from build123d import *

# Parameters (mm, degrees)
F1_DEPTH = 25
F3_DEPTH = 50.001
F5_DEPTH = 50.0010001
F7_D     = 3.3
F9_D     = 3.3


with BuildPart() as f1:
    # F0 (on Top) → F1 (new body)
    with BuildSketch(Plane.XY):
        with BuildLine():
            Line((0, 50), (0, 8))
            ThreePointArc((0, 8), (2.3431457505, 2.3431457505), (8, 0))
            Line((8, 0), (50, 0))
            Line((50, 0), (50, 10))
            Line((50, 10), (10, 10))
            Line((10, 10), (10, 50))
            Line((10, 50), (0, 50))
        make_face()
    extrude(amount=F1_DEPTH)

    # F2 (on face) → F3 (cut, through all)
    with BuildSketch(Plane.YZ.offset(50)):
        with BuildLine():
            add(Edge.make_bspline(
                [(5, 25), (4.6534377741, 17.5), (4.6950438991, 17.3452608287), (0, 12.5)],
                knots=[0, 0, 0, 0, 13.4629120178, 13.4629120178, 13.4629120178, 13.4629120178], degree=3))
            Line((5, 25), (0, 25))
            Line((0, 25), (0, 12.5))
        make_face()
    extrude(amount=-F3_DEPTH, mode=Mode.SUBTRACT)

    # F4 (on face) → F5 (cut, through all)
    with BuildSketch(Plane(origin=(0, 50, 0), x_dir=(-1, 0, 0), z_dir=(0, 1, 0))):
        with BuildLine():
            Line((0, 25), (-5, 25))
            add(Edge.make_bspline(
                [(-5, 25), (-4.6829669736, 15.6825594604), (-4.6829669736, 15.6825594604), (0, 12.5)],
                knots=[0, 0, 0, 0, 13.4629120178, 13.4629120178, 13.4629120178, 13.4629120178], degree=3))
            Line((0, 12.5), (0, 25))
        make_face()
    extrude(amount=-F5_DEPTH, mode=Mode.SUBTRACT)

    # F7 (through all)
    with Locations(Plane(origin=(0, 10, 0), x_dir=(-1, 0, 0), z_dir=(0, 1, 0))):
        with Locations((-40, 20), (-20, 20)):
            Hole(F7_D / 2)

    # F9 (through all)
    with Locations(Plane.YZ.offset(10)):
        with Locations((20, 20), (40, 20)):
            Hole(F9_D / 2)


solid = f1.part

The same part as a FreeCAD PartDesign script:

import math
import FreeCAD as App
import Part
import Sketcher
from FreeCAD import Vector

doc = App.newDocument("Part")
body = doc.addObject("PartDesign::Body", "Body")

# Sketch on XY plane
sketch1 = body.newObject("Sketcher::SketchObject", "Sketch")
sketch1.AttachmentSupport = (doc.getObject("XY_Plane"), [""])
sketch1.MapMode = "FlatFace"
sketch1.addGeometry(Part.LineSegment(Vector(0, 50, 0), Vector(0, 8, 0)), False)
sketch1.addGeometry(Part.ArcOfCircle(Part.Circle(Vector(8, 8, 0), Vector(0, 0, 1), 8), math.radians(180), math.radians(270)), False)
sketch1.addGeometry(Part.LineSegment(Vector(8, 0, 0), Vector(50, 0, 0)), False)
sketch1.addGeometry(Part.LineSegment(Vector(50, 0, 0), Vector(50, 10, 0)), False)
sketch1.addGeometry(Part.LineSegment(Vector(50, 10, 0), Vector(10, 10, 0)), False)
sketch1.addGeometry(Part.LineSegment(Vector(10, 10, 0), Vector(10, 50, 0)), False)
sketch1.addGeometry(Part.LineSegment(Vector(10, 50, 0), Vector(0, 50, 0)), False)
sketch1.addConstraint(Sketcher.Constraint("Tangent", 0, 2, 1, 1))
sketch1.addConstraint(Sketcher.Constraint("Tangent", 1, 2, 2, 1))
sketch1.addConstraint(Sketcher.Constraint("Coincident", 2, 2, 3, 1))
sketch1.addConstraint(Sketcher.Constraint("Coincident", 3, 2, 4, 1))
sketch1.addConstraint(Sketcher.Constraint("Coincident", 4, 2, 5, 1))
sketch1.addConstraint(Sketcher.Constraint("Coincident", 5, 2, 6, 1))
sketch1.addConstraint(Sketcher.Constraint("Coincident", 6, 2, 0, 1))
sketch1.addConstraint(Sketcher.Constraint("Vertical", 0))
sketch1.addConstraint(Sketcher.Constraint("Horizontal", 2))
sketch1.addConstraint(Sketcher.Constraint("Vertical", 3))
sketch1.addConstraint(Sketcher.Constraint("Horizontal", 4))
sketch1.addConstraint(Sketcher.Constraint("Vertical", 5))
sketch1.addConstraint(Sketcher.Constraint("Horizontal", 6))
sketch1.addConstraint(Sketcher.Constraint("PointOnObject", 0, 2, -2))
sketch1.addConstraint(Sketcher.Constraint("PointOnObject", 1, 2, -1))
sketch1.addConstraint(Sketcher.Constraint("Equal", 2, 0))
sketch1.addConstraint(Sketcher.Constraint("Equal", 6, 3))
sketch1.addConstraint(Sketcher.Constraint("Radius", 1, 8.0))
sketch1.addConstraint(Sketcher.Constraint("DistanceX", 2, 1, 2, 2, 42.0))
sketch1.addConstraint(Sketcher.Constraint("DistanceX", 4, 2, 4, 1, 40.0))
pad1 = body.newObject("PartDesign::Pad", "Pad")
pad1.Profile = sketch1
pad1.Length = 25

# Sketch on YZ plane
sketch2 = body.newObject("Sketcher::SketchObject", "Sketch001")
sketch2.AttachmentSupport = (doc.getObject("YZ_Plane"), [""])
sketch2.MapMode = "FlatFace"
sketch2.AttachmentOffset = App.Placement(Vector(0, 0, 50), App.Rotation())
sketch2.addGeometry(Part.BSplineCurve([Vector(5, 25, 0), Vector(4.653438, 17.5, 0), Vector(4.695044, 17.345261, 0), Vector(0, 12.5, 0)], [4, 4], [0, 13.462912018], False, 3, [1, 1, 1, 1], False), False)
sketch2.addGeometry(Part.LineSegment(Vector(5, 25, 0), Vector(0, 25, 0)), False)
sketch2.addGeometry(Part.LineSegment(Vector(0, 25, 0), Vector(0, 12.5, 0)), False)
sketch2.addConstraint(Sketcher.Constraint("Block", 0))
sketch2.addConstraint(Sketcher.Constraint("Coincident", 0, 1, 1, 1))
sketch2.addConstraint(Sketcher.Constraint("Coincident", 1, 2, 2, 1))
sketch2.addConstraint(Sketcher.Constraint("Coincident", 2, 2, 0, 2))
sketch2.addConstraint(Sketcher.Constraint("Horizontal", 1))
sketch2.addConstraint(Sketcher.Constraint("Vertical", 2))
pocket1 = body.newObject("PartDesign::Pocket", "Pocket")
pocket1.Profile = sketch2
pocket1.Type = "ThroughAll"

# Sketch on XZ plane
sketch3 = body.newObject("Sketcher::SketchObject", "Sketch002")
sketch3.AttachmentSupport = (doc.getObject("XZ_Plane"), [""])
sketch3.MapMode = "FlatFace"
sketch3.AttachmentOffset = App.Placement(Vector(0, 0, -50), App.Rotation())
sketch3.addGeometry(Part.LineSegment(Vector(0, 25, 0), Vector(5, 25, 0)), False)
sketch3.addGeometry(Part.BSplineCurve([Vector(5, 25, 0), Vector(4.682967, 15.682559, 0), Vector(4.682967, 15.682559, 0), Vector(0, 12.5, 0)], [4, 4], [0, 13.462912018], False, 3, [1, 1, 1, 1], False), False)
sketch3.addGeometry(Part.LineSegment(Vector(0, 12.5, 0), Vector(0, 25, 0)), False)
sketch3.addConstraint(Sketcher.Constraint("Block", 1))
sketch3.addConstraint(Sketcher.Constraint("Coincident", 0, 2, 1, 1))
sketch3.addConstraint(Sketcher.Constraint("Coincident", 1, 2, 2, 1))
sketch3.addConstraint(Sketcher.Constraint("Coincident", 2, 2, 0, 1))
sketch3.addConstraint(Sketcher.Constraint("Horizontal", 0))
sketch3.addConstraint(Sketcher.Constraint("Vertical", 2))
pocket2 = body.newObject("PartDesign::Pocket", "Pocket001")
pocket2.Profile = sketch3
pocket2.Type = "ThroughAll"
pocket2.Reversed = True

# Sketch on XZ plane
sketch4 = body.newObject("Sketcher::SketchObject", "Sketch003")
sketch4.AttachmentSupport = (doc.getObject("XZ_Plane"), [""])
sketch4.MapMode = "FlatFace"
sketch4.AttachmentOffset = App.Placement(Vector(0, 0, -10), App.Rotation())
sketch4.addGeometry(Part.Circle(Vector(40, 20, 0), Vector(0, 0, 1), 1.65), False)
sketch4.addGeometry(Part.Circle(Vector(20, 20, 0), Vector(0, 0, 1), 1.65), False)
sketch4.addConstraint(Sketcher.Constraint("Equal", 0, 1))
sketch4.addConstraint(Sketcher.Constraint("Horizontal", 0, 3, 1, 3))
sketch4.addConstraint(Sketcher.Constraint("Diameter", 0, 3.3))
sketch4.addConstraint(Sketcher.Constraint("DistanceX", -1, 1, 0, 3, 40.0))
sketch4.addConstraint(Sketcher.Constraint("DistanceY", -1, 1, 0, 3, 20.0))
sketch4.addConstraint(Sketcher.Constraint("DistanceX", -1, 1, 1, 3, 20.0))
doc.recompute()
hole = body.newObject("PartDesign::Hole", "Hole")
hole.Profile = sketch4
hole.ThreadType = "None"
hole.Diameter = 3.3
hole.DepthType = "ThroughAll"
hole.Reversed = True

# Sketch on YZ plane
sketch5 = body.newObject("Sketcher::SketchObject", "Sketch004")
sketch5.AttachmentSupport = (doc.getObject("YZ_Plane"), [""])
sketch5.MapMode = "FlatFace"
sketch5.AttachmentOffset = App.Placement(Vector(0, 0, 10), App.Rotation())
sketch5.addGeometry(Part.Circle(Vector(20, 20, 0), Vector(0, 0, 1), 1.65), False)
sketch5.addGeometry(Part.Circle(Vector(40, 20, 0), Vector(0, 0, 1), 1.65), False)
sketch5.addConstraint(Sketcher.Constraint("Equal", 0, 1))
sketch5.addConstraint(Sketcher.Constraint("Horizontal", 0, 3, 1, 3))
sketch5.addConstraint(Sketcher.Constraint("Diameter", 0, 3.3))
sketch5.addConstraint(Sketcher.Constraint("DistanceX", -1, 1, 0, 3, 20.0))
sketch5.addConstraint(Sketcher.Constraint("DistanceY", -1, 1, 0, 3, 20.0))
sketch5.addConstraint(Sketcher.Constraint("DistanceX", -1, 1, 1, 3, 40.0))
doc.recompute()
hole2 = body.newObject("PartDesign::Hole", "Hole001")
hole2.Profile = sketch5
hole2.ThreadType = "None"
hole2.Diameter = 3.3
hole2.DepthType = "ThroughAll"

doc.recompute()
